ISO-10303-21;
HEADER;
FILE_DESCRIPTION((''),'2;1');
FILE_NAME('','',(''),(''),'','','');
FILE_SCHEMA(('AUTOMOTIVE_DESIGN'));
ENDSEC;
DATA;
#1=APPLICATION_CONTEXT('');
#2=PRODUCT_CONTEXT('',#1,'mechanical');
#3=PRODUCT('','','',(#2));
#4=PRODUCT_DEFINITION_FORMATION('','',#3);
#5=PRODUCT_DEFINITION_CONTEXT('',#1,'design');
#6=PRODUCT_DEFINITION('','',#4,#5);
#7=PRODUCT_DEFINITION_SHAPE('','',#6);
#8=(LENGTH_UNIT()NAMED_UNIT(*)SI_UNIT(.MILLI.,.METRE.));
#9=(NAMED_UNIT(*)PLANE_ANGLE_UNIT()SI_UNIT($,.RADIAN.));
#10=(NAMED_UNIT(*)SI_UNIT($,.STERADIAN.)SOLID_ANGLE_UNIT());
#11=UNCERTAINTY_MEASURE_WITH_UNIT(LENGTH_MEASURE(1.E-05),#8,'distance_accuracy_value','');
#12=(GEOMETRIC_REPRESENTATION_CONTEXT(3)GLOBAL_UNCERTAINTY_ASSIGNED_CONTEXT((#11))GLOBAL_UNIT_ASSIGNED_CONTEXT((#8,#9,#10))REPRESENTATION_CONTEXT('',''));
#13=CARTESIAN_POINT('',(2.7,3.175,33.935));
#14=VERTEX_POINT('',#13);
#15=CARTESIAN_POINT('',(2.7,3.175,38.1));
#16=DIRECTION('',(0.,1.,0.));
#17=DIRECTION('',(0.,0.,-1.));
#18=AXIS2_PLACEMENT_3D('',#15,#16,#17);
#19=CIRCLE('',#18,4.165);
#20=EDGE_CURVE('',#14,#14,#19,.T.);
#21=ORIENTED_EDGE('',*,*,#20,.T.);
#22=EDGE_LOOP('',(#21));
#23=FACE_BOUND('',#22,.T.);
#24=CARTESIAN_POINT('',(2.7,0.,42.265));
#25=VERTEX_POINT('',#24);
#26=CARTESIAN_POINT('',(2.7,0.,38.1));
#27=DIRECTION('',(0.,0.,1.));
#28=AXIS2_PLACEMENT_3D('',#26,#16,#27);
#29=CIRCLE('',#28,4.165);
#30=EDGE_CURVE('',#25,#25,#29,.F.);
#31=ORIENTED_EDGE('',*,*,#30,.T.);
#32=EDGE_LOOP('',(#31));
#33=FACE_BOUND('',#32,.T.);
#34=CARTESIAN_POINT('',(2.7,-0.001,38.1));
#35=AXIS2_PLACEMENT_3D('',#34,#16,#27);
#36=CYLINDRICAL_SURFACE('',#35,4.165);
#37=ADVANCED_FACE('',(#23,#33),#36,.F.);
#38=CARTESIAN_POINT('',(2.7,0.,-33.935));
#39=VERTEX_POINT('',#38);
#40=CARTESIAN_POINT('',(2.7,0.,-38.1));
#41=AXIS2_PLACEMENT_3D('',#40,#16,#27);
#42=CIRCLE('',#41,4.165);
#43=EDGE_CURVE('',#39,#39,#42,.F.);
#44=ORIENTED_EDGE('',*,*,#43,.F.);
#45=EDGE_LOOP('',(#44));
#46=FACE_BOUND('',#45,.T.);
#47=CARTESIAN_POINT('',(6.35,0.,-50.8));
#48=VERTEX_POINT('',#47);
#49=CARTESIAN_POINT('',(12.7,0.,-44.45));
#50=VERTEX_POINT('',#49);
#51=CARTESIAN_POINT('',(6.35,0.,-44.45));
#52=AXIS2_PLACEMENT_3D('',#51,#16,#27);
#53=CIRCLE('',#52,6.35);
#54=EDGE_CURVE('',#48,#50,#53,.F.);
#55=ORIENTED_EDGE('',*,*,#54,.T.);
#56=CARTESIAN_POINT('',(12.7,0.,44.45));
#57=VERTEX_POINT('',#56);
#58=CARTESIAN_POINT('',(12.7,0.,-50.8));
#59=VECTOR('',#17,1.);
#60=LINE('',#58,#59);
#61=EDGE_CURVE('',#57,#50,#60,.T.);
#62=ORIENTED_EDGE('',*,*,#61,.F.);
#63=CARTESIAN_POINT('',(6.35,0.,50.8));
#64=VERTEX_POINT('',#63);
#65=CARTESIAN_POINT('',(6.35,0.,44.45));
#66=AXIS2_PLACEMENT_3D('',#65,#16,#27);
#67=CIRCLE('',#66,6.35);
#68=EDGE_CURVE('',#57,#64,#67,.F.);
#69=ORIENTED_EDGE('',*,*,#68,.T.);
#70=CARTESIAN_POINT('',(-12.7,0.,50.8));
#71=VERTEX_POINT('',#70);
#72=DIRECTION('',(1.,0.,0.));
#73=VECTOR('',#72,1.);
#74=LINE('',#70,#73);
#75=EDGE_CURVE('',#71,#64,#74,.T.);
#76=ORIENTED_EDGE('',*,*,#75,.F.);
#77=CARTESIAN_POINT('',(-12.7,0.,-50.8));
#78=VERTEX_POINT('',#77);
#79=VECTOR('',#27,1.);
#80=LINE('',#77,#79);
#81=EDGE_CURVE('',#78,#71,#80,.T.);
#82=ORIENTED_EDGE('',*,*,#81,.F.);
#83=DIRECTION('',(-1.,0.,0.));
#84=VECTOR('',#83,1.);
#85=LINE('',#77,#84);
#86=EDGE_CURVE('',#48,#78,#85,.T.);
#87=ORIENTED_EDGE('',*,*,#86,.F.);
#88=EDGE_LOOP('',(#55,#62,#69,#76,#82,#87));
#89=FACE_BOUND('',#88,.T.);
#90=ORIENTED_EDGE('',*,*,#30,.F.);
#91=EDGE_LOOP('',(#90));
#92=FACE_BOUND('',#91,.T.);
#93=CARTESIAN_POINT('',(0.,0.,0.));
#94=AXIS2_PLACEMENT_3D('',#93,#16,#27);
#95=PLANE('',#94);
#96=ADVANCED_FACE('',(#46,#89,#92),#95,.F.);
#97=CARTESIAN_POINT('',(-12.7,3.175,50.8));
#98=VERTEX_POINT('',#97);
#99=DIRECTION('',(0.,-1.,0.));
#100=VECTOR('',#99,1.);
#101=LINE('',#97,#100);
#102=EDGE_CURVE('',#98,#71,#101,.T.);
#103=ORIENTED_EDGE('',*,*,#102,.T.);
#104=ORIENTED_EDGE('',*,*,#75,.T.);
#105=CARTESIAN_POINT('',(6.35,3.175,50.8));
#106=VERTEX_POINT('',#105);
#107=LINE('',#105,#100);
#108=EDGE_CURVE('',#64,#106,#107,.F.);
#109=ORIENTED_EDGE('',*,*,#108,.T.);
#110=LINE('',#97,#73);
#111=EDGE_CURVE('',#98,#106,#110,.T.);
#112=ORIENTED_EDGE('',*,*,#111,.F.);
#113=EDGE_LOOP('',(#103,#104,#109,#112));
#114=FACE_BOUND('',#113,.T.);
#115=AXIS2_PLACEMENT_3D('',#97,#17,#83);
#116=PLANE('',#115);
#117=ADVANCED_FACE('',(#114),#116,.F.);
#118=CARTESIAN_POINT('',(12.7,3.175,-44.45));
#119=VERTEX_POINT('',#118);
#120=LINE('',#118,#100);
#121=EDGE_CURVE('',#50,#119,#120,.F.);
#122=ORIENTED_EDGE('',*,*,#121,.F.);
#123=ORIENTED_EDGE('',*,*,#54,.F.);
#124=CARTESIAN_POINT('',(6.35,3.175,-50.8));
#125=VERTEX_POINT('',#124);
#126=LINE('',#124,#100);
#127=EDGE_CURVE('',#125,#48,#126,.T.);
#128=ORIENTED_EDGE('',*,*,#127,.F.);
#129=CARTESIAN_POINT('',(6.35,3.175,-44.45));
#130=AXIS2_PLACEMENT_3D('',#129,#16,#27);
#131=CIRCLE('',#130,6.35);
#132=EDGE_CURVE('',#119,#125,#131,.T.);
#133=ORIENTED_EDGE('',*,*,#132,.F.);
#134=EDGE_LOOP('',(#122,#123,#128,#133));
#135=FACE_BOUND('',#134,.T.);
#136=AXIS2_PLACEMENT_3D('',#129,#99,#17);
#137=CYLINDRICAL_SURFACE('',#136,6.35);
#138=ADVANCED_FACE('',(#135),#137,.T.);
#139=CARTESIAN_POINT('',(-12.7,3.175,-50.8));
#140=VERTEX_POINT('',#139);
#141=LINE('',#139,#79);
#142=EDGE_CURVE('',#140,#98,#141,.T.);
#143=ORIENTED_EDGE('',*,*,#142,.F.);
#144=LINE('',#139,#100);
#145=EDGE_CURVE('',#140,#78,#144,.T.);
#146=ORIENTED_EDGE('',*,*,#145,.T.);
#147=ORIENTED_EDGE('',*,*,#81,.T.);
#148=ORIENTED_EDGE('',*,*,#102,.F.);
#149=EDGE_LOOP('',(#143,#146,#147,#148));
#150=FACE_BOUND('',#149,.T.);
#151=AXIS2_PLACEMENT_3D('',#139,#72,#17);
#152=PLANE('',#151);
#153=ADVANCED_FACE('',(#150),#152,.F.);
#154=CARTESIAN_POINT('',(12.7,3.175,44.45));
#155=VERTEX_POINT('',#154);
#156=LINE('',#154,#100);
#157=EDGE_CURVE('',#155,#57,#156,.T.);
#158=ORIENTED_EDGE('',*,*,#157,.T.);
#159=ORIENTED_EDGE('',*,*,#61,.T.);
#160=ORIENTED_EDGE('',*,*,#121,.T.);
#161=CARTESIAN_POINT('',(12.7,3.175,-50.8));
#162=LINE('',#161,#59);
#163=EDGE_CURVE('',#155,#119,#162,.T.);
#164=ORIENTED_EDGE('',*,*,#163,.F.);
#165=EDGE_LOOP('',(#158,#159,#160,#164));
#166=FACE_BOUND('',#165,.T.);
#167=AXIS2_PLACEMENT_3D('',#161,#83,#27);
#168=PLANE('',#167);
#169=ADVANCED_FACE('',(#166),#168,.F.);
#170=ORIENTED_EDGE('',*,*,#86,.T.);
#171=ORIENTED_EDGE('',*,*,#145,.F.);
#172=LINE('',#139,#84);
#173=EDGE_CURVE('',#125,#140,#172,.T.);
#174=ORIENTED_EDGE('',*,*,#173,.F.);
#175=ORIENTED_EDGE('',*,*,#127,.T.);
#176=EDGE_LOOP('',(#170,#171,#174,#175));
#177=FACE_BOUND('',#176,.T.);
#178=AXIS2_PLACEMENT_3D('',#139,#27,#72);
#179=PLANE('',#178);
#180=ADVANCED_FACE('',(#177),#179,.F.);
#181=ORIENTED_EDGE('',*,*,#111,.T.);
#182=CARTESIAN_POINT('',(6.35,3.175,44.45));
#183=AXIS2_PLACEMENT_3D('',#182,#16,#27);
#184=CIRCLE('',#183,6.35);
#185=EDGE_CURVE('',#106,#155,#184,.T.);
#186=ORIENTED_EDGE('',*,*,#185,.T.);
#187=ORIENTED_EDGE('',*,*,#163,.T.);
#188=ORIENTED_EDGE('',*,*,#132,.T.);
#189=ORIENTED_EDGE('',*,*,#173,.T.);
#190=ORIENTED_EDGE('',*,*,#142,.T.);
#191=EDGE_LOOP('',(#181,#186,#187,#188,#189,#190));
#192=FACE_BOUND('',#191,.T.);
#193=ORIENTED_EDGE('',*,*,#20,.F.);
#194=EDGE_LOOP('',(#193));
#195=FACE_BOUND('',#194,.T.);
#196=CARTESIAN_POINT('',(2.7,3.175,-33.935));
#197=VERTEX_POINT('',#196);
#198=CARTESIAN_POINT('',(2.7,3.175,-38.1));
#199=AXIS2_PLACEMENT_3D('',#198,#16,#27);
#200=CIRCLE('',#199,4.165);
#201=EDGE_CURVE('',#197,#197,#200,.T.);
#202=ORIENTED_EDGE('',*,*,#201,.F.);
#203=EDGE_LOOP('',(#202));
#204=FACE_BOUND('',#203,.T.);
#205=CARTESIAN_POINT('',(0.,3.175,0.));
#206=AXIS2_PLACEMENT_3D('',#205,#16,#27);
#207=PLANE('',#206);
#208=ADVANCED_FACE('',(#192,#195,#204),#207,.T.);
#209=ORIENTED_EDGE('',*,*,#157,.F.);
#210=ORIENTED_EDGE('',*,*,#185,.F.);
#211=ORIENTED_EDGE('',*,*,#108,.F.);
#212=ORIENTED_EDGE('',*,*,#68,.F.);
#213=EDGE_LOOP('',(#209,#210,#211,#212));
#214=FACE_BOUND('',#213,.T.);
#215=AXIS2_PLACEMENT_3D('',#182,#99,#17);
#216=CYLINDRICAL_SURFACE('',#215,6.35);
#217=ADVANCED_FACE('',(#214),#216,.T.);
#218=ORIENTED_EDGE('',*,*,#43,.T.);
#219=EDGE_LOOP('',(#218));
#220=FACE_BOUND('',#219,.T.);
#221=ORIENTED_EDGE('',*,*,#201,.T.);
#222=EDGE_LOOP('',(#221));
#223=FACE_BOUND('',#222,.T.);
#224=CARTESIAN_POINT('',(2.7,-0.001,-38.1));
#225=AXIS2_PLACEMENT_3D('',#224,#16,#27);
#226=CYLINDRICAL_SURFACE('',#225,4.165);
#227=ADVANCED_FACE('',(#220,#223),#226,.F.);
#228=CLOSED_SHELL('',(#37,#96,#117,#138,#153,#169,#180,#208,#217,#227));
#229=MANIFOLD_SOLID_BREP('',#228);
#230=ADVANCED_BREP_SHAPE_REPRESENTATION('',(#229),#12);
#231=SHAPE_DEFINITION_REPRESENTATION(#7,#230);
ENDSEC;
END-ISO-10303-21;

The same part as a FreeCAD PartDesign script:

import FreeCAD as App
import Part
import Sketcher
Q = App.Units.Quantity


def edges_at(feature, points):
    """Names of the edges that pass closest to the given points."""
    edges = feature.Shape.Edges
    near = lambda p: min(range(len(edges)), key=lambda i: edges[i].distToShape(Part.Vertex(*p))[0])
    return sorted({f"Edge{near(p) + 1}" for p in points})

doc = App.newDocument("Part")
body = doc.addObject("PartDesign::Body", "Body")

# Sketch on XZ plane
sketch1 = body.newObject("Sketcher::SketchObject", "Sketch")
sketch1.AttachmentSupport = (doc.getObject("XZ_Plane"), [""])
sketch1.MapMode = "FlatFace"
sketch1.addGeometry([
    Part.LineSegment(App.Vector(-13, -51, 0), App.Vector(-13, 51, 0)),
    Part.LineSegment(App.Vector(-13, 51, 0), App.Vector(13, 51, 0)),
    Part.LineSegment(App.Vector(13, 51, 0), App.Vector(13, -51, 0)),
    Part.LineSegment(App.Vector(13, -51, 0), App.Vector(-13, -51, 0)),
], False)
sketch1.addConstraint([
    Sketcher.Constraint("Coincident", 0, 2, 1, 1),
    Sketcher.Constraint("Coincident", 1, 2, 2, 1),
    Sketcher.Constraint("Coincident", 2, 2, 3, 1),
    Sketcher.Constraint("Coincident", 3, 2, 0, 1),
    Sketcher.Constraint("Vertical", 0),
    Sketcher.Constraint("Horizontal", 1),
    Sketcher.Constraint("Vertical", 2),
    Sketcher.Constraint("Horizontal", 3),
    Sketcher.Constraint("Symmetric", 0, 2, 2, 2, -1, 1),
    Sketcher.Constraint("DistanceX", 1, 1, 1, 2, Q("1 in")),
    Sketcher.Constraint("DistanceY", 0, 1, 0, 2, Q("4 in")),
])
pad1 = body.newObject("PartDesign::Pad", "Pad")
pad1.Profile = sketch1
pad1.Length = Q("0.125 in")
pad1.Reversed = True
doc.recompute()

fillet = body.newObject("PartDesign::Fillet", "Fillet")
fillet.Base = (pad1, edges_at(pad1, [(12.7, 1.587, 50.8), (12.7, 1.587, -50.8)]))
fillet.Radius = Q("0.25 in")

# Sketch on XZ plane
sketch2 = body.newObject("Sketcher::SketchObject", "Sketch001")
sketch2.AttachmentSupport = (doc.getObject("XZ_Plane"), [""])
sketch2.MapMode = "FlatFace"
sketch2.AttachmentOffset = App.Placement(App.Vector(0, 0, -0.125 * 25.4), App.Rotation())
sketch2.addGeometry(Part.Circle(App.Vector(2.7, -38.1, 0), App.Vector(0, 0, 1), 4.2), False)
sketch2.addConstraint([
    Sketcher.Constraint("DistanceY", 0, 3, -1, 1, Q("1.5 in")),
    Sketcher.Constraint("Diameter", 0, Q("8.33 mm")),
    Sketcher.Constraint("DistanceX", -1, 1, 0, 3, Q("2.7 mm")),
])
pocket1 = body.newObject("PartDesign::Pocket", "Pocket")
pocket1.Profile = sketch2
pocket1.Type = "UpToFirst"
pocket1.Reversed = True

# Sketch on XZ plane
sketch3 = body.newObject("Sketcher::SketchObject", "Sketch002")
sketch3.AttachmentSupport = (doc.getObject("XZ_Plane"), [""])
sketch3.MapMode = "FlatFace"
sketch3.AttachmentOffset = App.Placement(App.Vector(0, 0, -0.125 * 25.4), App.Rotation())
sketch3.addGeometry(Part.Circle(App.Vector(2.7, 38.1, 0), App.Vector(0, 0, 1), 4.2), False)
sketch3.addConstraint([
    Sketcher.Constraint("DistanceY", -1, 1, 0, 3, Q("1.5 in")),
    Sketcher.Constraint("Diameter", 0, Q("8.33 mm")),
    Sketcher.Constraint("DistanceX", -1, 1, 0, 3, Q("2.7 mm")),
])
pocket2 = body.newObject("PartDesign::Pocket", "Pocket001")
pocket2.Profile = sketch3
pocket2.Type = "UpToFirst"
pocket2.Reversed = True

doc.recompute()
